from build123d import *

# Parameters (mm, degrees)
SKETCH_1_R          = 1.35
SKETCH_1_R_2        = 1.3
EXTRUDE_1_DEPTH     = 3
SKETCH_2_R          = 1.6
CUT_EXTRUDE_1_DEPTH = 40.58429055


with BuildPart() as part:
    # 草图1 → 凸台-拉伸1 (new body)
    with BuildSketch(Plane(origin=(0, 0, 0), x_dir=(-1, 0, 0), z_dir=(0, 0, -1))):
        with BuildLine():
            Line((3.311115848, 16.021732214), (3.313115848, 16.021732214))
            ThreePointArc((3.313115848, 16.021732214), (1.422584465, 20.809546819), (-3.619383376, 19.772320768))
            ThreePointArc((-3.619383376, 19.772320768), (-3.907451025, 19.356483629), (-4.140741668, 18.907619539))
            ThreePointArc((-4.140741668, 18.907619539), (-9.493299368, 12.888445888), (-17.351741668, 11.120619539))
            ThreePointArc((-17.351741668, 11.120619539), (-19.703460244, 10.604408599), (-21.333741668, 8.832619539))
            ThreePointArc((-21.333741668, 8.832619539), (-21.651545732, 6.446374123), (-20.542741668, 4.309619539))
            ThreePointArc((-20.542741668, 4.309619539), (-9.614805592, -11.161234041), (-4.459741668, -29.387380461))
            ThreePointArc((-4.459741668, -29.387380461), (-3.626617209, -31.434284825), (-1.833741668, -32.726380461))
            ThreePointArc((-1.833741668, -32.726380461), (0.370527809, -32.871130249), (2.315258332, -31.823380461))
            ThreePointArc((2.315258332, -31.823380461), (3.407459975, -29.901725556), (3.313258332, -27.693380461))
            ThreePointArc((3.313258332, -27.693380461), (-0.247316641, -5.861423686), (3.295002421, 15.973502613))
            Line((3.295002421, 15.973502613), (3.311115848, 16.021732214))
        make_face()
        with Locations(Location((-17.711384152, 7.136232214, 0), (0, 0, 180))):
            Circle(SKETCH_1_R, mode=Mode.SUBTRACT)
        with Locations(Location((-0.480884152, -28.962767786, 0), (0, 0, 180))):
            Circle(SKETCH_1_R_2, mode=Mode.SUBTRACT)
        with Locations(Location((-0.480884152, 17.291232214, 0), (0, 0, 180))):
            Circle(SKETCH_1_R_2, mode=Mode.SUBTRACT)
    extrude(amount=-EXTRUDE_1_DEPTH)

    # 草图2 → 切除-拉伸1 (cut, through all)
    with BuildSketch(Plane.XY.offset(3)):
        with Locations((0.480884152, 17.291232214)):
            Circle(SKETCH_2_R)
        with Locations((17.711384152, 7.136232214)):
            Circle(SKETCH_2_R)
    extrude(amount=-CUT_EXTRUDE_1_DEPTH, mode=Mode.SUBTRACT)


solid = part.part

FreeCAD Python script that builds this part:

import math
import FreeCAD as App
import Part
import Sketcher
from FreeCAD import Vector

doc = App.newDocument("Part")
body = doc.addObject("PartDesign::Body", "Body")

sketch1 = doc.addObject("Sketcher::SketchObject", "Sketch")
body.addObject(sketch1)
sketch1.AttachmentSupport = (doc.XY_Plane, [""])
sketch1.MapMode = "FlatFace"
sketch1.addGeometry(Part.LineSegment(Vector(-3.311116, 16.021732, 0), Vector(-3.313116, 16.021732, 0)), False)
sketch1.addGeometry(Part.ArcOfCircle(Part.Circle(Vector(0.481188, 17.29066, 0), Vector(0, 0, 1), 4.000864), math.radians(38.336677), math.radians(198.491461)), False)
sketch1.addGeometry(Part.ArcOfCircle(Part.Circle(Vector(0.481247, 17.290707, 0), Vector(0, 0, 1), 4.000788), math.radians(23.837782), math.radians(38.336677)), False)
sketch1.addGeometry(Part.ArcOfCircle(Part.Circle(Vector(16.169268, 24.21453, 0), Vector(0, 0, 1), 13.147195), math.radians(-156.193227), math.radians(-84.839779)), False)
sketch1.addGeometry(Part.ArcOfCircle(Part.Circle(Vector(17.709033, 7.133338, 0), Vector(0, 0, 1), 4.003257), math.radians(25.117416), math.radians(95.120471)), False)
sketch1.addGeometry(Part.ArcOfCircle(Part.Circle(Vector(17.709899, 7.135705, 0), Vector(0, 0, 1), 4.001469), math.radians(-44.931584), math.radians(25.091999)), False)
sketch1.addGeometry(Part.ArcOfCircle(Part.Circle(Vector(60.231458, -35.319694, 0), Vector(0, 0, 1), 56.086333), math.radians(135.04291), math.radians(173.928405)), False)
sketch1.addGeometry(Part.ArcOfCircle(Part.Circle(Vector(0.482562, -28.961601, 0), Vector(0, 0, 1), 3.999906), math.radians(-70.256926), math.radians(-6.110556)), False)
sketch1.addGeometry(Part.ArcOfCircle(Part.Circle(Vector(0.479797, -28.964157, 0), Vector(0, 0, 1), 3.998436), math.radians(-134.349799), math.radians(-70.207267)), False)
sketch1.addGeometry(Part.ArcOfCircle(Part.Circle(Vector(0.483387, -28.961516, 0), Vector(0, 0, 1), 4.002834), math.radians(161.529917), math.radians(225.639881)), False)
sketch1.addGeometry(Part.ArcOfCircle(Part.Circle(Vector(-68.641779, -5.832623, 0), Vector(0, 0, 1), 68.889101), math.radians(-18.501688), math.radians(18.453781)), False)
sketch1.addGeometry(Part.LineSegment(Vector(-3.295002, 15.973503, 0), Vector(-3.311116, 16.021732, 0)), False)
sketch1.addGeometry(Part.Circle(Vector(0.480884, -28.962768, 0), Vector(0, 0, 1), 1.3), False)
sketch1.addGeometry(Part.Circle(Vector(17.711384, 7.136232, 0), Vector(0, 0, 1), 1.35), False)
sketch1.addGeometry(Part.Circle(Vector(0.480884, 17.291232, 0), Vector(0, 0, 1), 1.3), False)
sketch1.addConstraint(Sketcher.Constraint("Coincident", 0, 2, 1, 2))
sketch1.addConstraint(Sketcher.Constraint("Tangent", 1, 1, 2, 2))
sketch1.addConstraint(Sketcher.Constraint("Coincident", 2, 1, 3, 1))
sketch1.addConstraint(Sketcher.Constraint("Coincident", 3, 2, 4, 2))
sketch1.addConstraint(Sketcher.Constraint("Coincident", 4, 1, 5, 2))
sketch1.addConstraint(Sketcher.Constraint("Coincident", 5, 1, 6, 1))
sketch1.addConstraint(Sketcher.Constraint("Coincident", 6, 2, 7, 2))
sketch1.addConstraint(Sketcher.Constraint("Coincident", 7, 1, 8, 2))
sketch1.addConstraint(Sketcher.Constraint("Coincident", 8, 1, 9, 2))
sketch1.addConstraint(Sketcher.Constraint("Coincident", 9, 1, 10, 1))
sketch1.addConstraint(Sketcher.Constraint("Coincident", 10, 2, 11, 1))
sketch1.addConstraint(Sketcher.Constraint("Coincident", 11, 2, 0, 1))
sketch1.addConstraint(Sketcher.Constraint("Horizontal", 0))
sketch1.addConstraint(Sketcher.Constraint("Equal", 12, 14))
sketch1.addConstraint(Sketcher.Constraint("Vertical", 12, 3, 14, 3))
sketch1.addConstraint(Sketcher.Constraint("Diameter", 12, 2.6))
sketch1.addConstraint(Sketcher.Constraint("Diameter", 13, 2.7))
sketch1.addConstraint(Sketcher.Constraint("Radius", 10, 68.889101))
sketch1.addConstraint(Sketcher.Constraint("DistanceX", 0, 2, 0, 1, 0.002))
sketch1.addConstraint(Sketcher.Constraint("Radius", 2, 4.000788))
sketch1.addConstraint(Sketcher.Constraint("Radius", 5, 4.001469))
sketch1.addConstraint(Sketcher.Constraint("DistanceY", 8, 1, 9, 1, 4.13))
sketch1.addConstraint(Sketcher.Constraint("Radius", 1, 4.000864))
sketch1.addConstraint(Sketcher.Constraint("Radius", 3, 13.147195))
sketch1.addConstraint(Sketcher.Constraint("Radius", 4, 4.003257))
sketch1.addConstraint(Sketcher.Constraint("Radius", 6, 56.086333))
sketch1.addConstraint(Sketcher.Constraint("Radius", 7, 3.999906))
sketch1.addConstraint(Sketcher.Constraint("Radius", 8, 3.998436))
sketch1.addConstraint(Sketcher.Constraint("Radius", 9, 4.002834))
sketch1.addConstraint(Sketcher.Constraint("DistanceX", 0, 2, 14, 3, 3.794))
sketch1.addConstraint(Sketcher.Constraint("DistanceX", 2, 1, 3, 2, 13.211))
sketch1.addConstraint(Sketcher.Constraint("DistanceY", 3, 2, 2, 1, 7.787))
sketch1.addConstraint(Sketcher.Constraint("DistanceX", 3, 2, 4, 1, 3.982))
sketch1.addConstraint(Sketcher.Constraint("DistanceY", 4, 1, 3, 2, 2.288))
sketch1.addConstraint(Sketcher.Constraint("DistanceX", 5, 1, 4, 1, 0.791))
sketch1.addConstraint(Sketcher.Constraint("DistanceY", 5, 1, 4, 1, 4.523))
sketch1.addConstraint(Sketcher.Constraint("DistanceX", 6, 2, 5, 1, 16.083))
sketch1.addConstraint(Sketcher.Constraint("DistanceY", 6, 2, 5, 1, 33.697))
sketch1.addConstraint(Sketcher.Constraint("DistanceX", 7, 1, 6, 2, 2.626))
sketch1.addConstraint(Sketcher.Constraint("DistanceY", 7, 1, 6, 2, 3.339))
sketch1.addConstraint(Sketcher.Constraint("DistanceX", 8, 1, 7, 1, 4.149))
sketch1.addConstraint(Sketcher.Constraint("DistanceY", 7, 1, 8, 1, 0.903))
sketch1.addConstraint(Sketcher.Constraint("DistanceX", 9, 1, 8, 1, 0.998))
sketch1.addConstraint(Sketcher.Constraint("DistanceX", -1, 1, 5, 3, 17.709899))
sketch1.addConstraint(Sketcher.Constraint("DistanceY", 7, 3, -1, 1, 28.961601))
sketch1.addConstraint(Sketcher.Constraint("DistanceY", 6, 3, 2, 3, 52.610401))
sketch1.addConstraint(Sketcher.Constraint("DistanceY", 13, 3, 3, 3, 17.078298))
sketch1.addConstraint(Sketcher.Constraint("DistanceY", 14, 3, 3, 3, 6.923298))
sketch1.addConstraint(Sketcher.Constraint("DistanceY", 0, 2, 14, 3, 1.2695))
sketch1.addConstraint(Sketcher.Constraint("DistanceX", 14, 3, 1, 1, 3.138499))
sketch1.addConstraint(Sketcher.Constraint("Distance", 11, 0.05085))
sketch1.addConstraint(Sketcher.Constraint("DistanceX", 10, 3, -1, 1, 68.641779))
sketch1.addConstraint(Sketcher.Constraint("DistanceY", 8, 3, 12, 3, 0.001389))
sketch1.addConstraint(Sketcher.Constraint("DistanceX", 4, 3, 13, 3, 0.002351))
pad1 = doc.addObject("PartDesign::Pad", "Pad")
body.addObject(pad1)
pad1.Profile = sketch1
pad1.Length = 3

sketch2 = doc.addObject("Sketcher::SketchObject", "Sketch001")
body.addObject(sketch2)
sketch2.AttachmentSupport = (doc.XY_Plane, [""])
sketch2.MapMode = "FlatFace"
sketch2.AttachmentOffset = App.Placement(Vector(0, 0, 3), App.Rotation())
sketch2.addGeometry(Part.Circle(Vector(0.5, 17.3, 0), Vector(0, 0, 1), 1.6), False)
sketch2.addGeometry(Part.Circle(Vector(17.7, 7.1, 0), Vector(0, 0, 1), 1.6), False)
sketch2.addConstraint(Sketcher.Constraint("Equal", 0, 1))
sketch2.addConstraint(Sketcher.Constraint("Diameter", 0, 3.2))
sketch2.addConstraint(Sketcher.Constraint("DistanceY", 1, 3, 0, 3, 10.155))
sketch2.addConstraint(Sketcher.Constraint("DistanceX", 0, 3, 1, 3, 17.2305))
sketch2.addConstraint(Sketcher.Constraint("DistanceX", -1, 1, 0, 3, 0.480884))
sketch2.addConstraint(Sketcher.Constraint("DistanceY", -1, 1, 0, 3, 17.291232))
pocket1 = doc.addObject("PartDesign::Pocket", "Pocket")
body.addObject(pocket1)
pocket1.Profile = sketch2
pocket1.Type = "ThroughAll"

doc.recompute()
